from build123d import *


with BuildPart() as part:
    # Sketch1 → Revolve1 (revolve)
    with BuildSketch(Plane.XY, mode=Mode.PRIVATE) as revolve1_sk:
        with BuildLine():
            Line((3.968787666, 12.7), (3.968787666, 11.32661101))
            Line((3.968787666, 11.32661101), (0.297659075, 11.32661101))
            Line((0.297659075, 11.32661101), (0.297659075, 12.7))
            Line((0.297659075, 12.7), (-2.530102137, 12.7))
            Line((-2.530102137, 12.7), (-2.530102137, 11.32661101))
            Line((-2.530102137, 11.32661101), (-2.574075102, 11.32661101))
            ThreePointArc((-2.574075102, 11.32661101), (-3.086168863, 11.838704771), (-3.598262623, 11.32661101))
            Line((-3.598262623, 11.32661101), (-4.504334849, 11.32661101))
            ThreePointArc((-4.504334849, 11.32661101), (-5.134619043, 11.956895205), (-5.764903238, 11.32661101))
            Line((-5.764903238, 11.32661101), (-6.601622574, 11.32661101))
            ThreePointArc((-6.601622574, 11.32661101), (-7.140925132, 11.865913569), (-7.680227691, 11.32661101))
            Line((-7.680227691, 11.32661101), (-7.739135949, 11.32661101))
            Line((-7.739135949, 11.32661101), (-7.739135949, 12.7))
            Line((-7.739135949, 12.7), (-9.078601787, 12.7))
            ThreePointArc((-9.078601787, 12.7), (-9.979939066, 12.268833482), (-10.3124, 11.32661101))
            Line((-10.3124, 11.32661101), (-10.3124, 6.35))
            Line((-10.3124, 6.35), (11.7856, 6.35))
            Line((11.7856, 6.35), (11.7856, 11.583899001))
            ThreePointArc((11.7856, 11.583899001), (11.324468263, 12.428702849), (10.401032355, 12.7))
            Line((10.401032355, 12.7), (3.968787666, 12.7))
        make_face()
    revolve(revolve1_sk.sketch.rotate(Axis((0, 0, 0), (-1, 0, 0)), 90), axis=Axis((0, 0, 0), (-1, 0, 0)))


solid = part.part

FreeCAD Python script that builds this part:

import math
import FreeCAD as App
import Part
import Sketcher

V = App.Vector
Q = App.Units.Quantity

doc = App.newDocument("Part")
body = doc.addObject("PartDesign::Body", "Body")

# Sketch on XY plane
sketch1 = doc.addObject("Sketcher::SketchObject", "Sketch")
body.addObject(sketch1)
sketch1.AttachmentSupport = (doc.XY_Plane, [""])
sketch1.MapMode = "FlatFace"
sketch1.addGeometry([
    Part.LineSegment(V(3.969, 12.7, 0), V(3.969, 11.327, 0)),  # 0
    Part.LineSegment(V(3.969, 11.327, 0), V(0.298, 11.327, 0)),  # 1
    Part.LineSegment(V(0.298, 11.327, 0), V(0.298, 12.7, 0)),  # 2
    Part.LineSegment(V(0.298, 12.7, 0), V(-2.53, 12.7, 0)),  # 3
    Part.LineSegment(V(-2.53, 12.7, 0), V(-2.53, 11.327, 0)),  # 4
    Part.LineSegment(V(-2.53, 11.327, 0), V(-2.574, 11.327, 0)),  # 5
    Part.ArcOfCircle(Part.Circle(V(-3.086, 11.327, 0), V(0, 0, 1), 0.512), math.radians(0), math.radians(180)),  # 6
    Part.LineSegment(V(-3.598, 11.327, 0), V(-4.504, 11.327, 0)),  # 7
    Part.ArcOfCircle(Part.Circle(V(-5.135, 11.327, 0), V(0, 0, 1), 0.63), math.radians(0), math.radians(180)),  # 8
    Part.LineSegment(V(-5.765, 11.327, 0), V(-6.602, 11.327, 0)),  # 9
    Part.ArcOfCircle(Part.Circle(V(-7.141, 11.327, 0), V(0, 0, 1), 0.539), math.radians(0), math.radians(180)),  # 10
    Part.LineSegment(V(-7.68, 11.327, 0), V(-7.739, 11.327, 0)),  # 11
    Part.LineSegment(V(-7.739, 11.327, 0), V(-7.739, 12.7, 0)),  # 12
    Part.LineSegment(V(-7.739, 12.7, 0), V(-9.079, 12.7, 0)),  # 13
    Part.ArcOfCircle(Part.Circle(V(-9.009, 11.396, 0), V(0, 0, 1), 1.305), math.radians(93), math.radians(183)),  # 14
    Part.LineSegment(V(-10.312, 11.327, 0), V(-10.312, 6.35, 0)),  # 15
    Part.LineSegment(V(-10.312, 6.35, 0), V(11.786, 6.35, 0)),  # 16
    Part.LineSegment(V(11.786, 6.35, 0), V(11.786, 11.584, 0)),  # 17
    Part.ArcOfCircle(Part.Circle(V(10.535, 11.45, 0), V(0, 0, 1), 1.258), math.radians(6), math.radians(96)),  # 18
    Part.LineSegment(V(10.401, 12.7, 0), V(3.969, 12.7, 0)),  # 19
], False)
sketch1.addConstraint([
    Sketcher.Constraint("Coincident", 0, 2, 1, 1),
    Sketcher.Constraint("Coincident", 1, 2, 2, 1),
    Sketcher.Constraint("Coincident", 2, 2, 3, 1),
    Sketcher.Constraint("Coincident", 3, 2, 4, 1),
    Sketcher.Constraint("Coincident", 4, 2, 5, 1),
    Sketcher.Constraint("Coincident", 5, 2, 6, 1),
    Sketcher.Constraint("Coincident", 6, 2, 7, 1),
    Sketcher.Constraint("Coincident", 7, 2, 8, 1),
    Sketcher.Constraint("Coincident", 8, 2, 9, 1),
    Sketcher.Constraint("Coincident", 9, 2, 10, 1),
    Sketcher.Constraint("Coincident", 10, 2, 11, 1),
    Sketcher.Constraint("Coincident", 11, 2, 12, 1),
    Sketcher.Constraint("Coincident", 12, 2, 13, 1),
    Sketcher.Constraint("Coincident", 13, 2, 14, 1),
    Sketcher.Constraint("Coincident", 14, 2, 15, 1),
    Sketcher.Constraint("Coincident", 15, 2, 16, 1),
    Sketcher.Constraint("Coincident", 16, 2, 17, 1),
    Sketcher.Constraint("Coincident", 17, 2, 18, 1),
    Sketcher.Constraint("Coincident", 18, 2, 19, 1),
    Sketcher.Constraint("Coincident", 19, 2, 0, 1),
    Sketcher.Constraint("Vertical", 0),
    Sketcher.Constraint("Horizontal", 1),
    Sketcher.Constraint("Vertical", 2),
    Sketcher.Constraint("Horizontal", 3),
    Sketcher.Constraint("Vertical", 4),
    Sketcher.Constraint("Horizontal", 5),
    Sketcher.Constraint("Horizontal", 7),
    Sketcher.Constraint("Horizontal", 9),
    Sketcher.Constraint("Horizontal", 11),
    Sketcher.Constraint("Vertical", 12),
    Sketcher.Constraint("Horizontal", 13),
    Sketcher.Constraint("Vertical", 15),
    Sketcher.Constraint("Horizontal", 16),
    Sketcher.Constraint("Vertical", 17),
    Sketcher.Constraint("Horizontal", 19),
    Sketcher.Constraint("Horizontal", 6, 3, 8, 3),
    Sketcher.Constraint("Horizontal", 8, 3, 10, 3),
    Sketcher.Constraint("Horizontal", 10, 3, 0, 2),
    Sketcher.Constraint("Horizontal", 1, 2, 4, 2),
    Sketcher.Constraint("Horizontal", 5, 2, 6, 2),
    Sketcher.Constraint("Horizontal", 7, 2, 8, 2),
    Sketcher.Constraint("Horizontal", 9, 2, 10, 2),
    Sketcher.Constraint("Horizontal", 3, 2, 12, 2),
    Sketcher.Constraint("Horizontal", 11, 2, 14, 2),
    Sketcher.Constraint("Horizontal", 13, 2, 18, 2),
    Sketcher.Constraint("DistanceX", 16, 1, 16, 2, Q("0.87 in")),
    Sketcher.Constraint("DistanceY", -1, 1, 2, 2, Q("0.5 in")),
    Sketcher.Constraint("DistanceY", -1, 1, 15, 2, Q("0.25 in")),
    Sketcher.Constraint("DistanceX", 14, 2, -1, 1, Q("0.406 in")),
    Sketcher.Constraint("Radius", 14, Q("1.305461 mm")),
    Sketcher.Constraint("Radius", 18, Q("1.257519 mm")),
    Sketcher.Constraint("DistanceY", 17, 1, 17, 2, Q("5.233899 mm")),
    Sketcher.Constraint("Radius", 6, Q("0.512094 mm")),
    Sketcher.Constraint("Radius", 8, Q("0.630284 mm")),
    Sketcher.Constraint("Radius", 10, Q("0.539303 mm")),
    Sketcher.Constraint("DistanceX", 1, 2, 1, 1, Q("3.671129 mm")),
    Sketcher.Constraint("DistanceX", 3, 2, 3, 1, Q("2.827761 mm")),
    Sketcher.Constraint("DistanceX", 9, 2, 9, 1, Q("0.836719 mm")),
    Sketcher.Constraint("DistanceX", 11, 2, 11, 1, Q("0.058908 mm")),
    Sketcher.Constraint("DistanceY", 0, 2, 0, 1, Q("1.373389 mm")),
    Sketcher.Constraint("DistanceX", 13, 2, -1, 1, Q("9.078602 mm")),
    Sketcher.Constraint("DistanceX", 5, 2, 5, 1, Q("0.043973 mm")),
    Sketcher.Constraint("DistanceX", 7, 2, 7, 1, Q("0.906072 mm")),
    Sketcher.Constraint("DistanceX", 13, 2, 13, 1, Q("1.339466 mm")),
    Sketcher.Constraint("DistanceX", 19, 2, 19, 1, Q("6.432245 mm")),
])
revolution = doc.addObject("PartDesign::Revolution", "Revolution")
body.addObject(revolution)
revolution.Profile = sketch1
revolution.ReferenceAxis = (sketch1, ["H_Axis"])
revolution.Angle = 360

doc.recompute()
